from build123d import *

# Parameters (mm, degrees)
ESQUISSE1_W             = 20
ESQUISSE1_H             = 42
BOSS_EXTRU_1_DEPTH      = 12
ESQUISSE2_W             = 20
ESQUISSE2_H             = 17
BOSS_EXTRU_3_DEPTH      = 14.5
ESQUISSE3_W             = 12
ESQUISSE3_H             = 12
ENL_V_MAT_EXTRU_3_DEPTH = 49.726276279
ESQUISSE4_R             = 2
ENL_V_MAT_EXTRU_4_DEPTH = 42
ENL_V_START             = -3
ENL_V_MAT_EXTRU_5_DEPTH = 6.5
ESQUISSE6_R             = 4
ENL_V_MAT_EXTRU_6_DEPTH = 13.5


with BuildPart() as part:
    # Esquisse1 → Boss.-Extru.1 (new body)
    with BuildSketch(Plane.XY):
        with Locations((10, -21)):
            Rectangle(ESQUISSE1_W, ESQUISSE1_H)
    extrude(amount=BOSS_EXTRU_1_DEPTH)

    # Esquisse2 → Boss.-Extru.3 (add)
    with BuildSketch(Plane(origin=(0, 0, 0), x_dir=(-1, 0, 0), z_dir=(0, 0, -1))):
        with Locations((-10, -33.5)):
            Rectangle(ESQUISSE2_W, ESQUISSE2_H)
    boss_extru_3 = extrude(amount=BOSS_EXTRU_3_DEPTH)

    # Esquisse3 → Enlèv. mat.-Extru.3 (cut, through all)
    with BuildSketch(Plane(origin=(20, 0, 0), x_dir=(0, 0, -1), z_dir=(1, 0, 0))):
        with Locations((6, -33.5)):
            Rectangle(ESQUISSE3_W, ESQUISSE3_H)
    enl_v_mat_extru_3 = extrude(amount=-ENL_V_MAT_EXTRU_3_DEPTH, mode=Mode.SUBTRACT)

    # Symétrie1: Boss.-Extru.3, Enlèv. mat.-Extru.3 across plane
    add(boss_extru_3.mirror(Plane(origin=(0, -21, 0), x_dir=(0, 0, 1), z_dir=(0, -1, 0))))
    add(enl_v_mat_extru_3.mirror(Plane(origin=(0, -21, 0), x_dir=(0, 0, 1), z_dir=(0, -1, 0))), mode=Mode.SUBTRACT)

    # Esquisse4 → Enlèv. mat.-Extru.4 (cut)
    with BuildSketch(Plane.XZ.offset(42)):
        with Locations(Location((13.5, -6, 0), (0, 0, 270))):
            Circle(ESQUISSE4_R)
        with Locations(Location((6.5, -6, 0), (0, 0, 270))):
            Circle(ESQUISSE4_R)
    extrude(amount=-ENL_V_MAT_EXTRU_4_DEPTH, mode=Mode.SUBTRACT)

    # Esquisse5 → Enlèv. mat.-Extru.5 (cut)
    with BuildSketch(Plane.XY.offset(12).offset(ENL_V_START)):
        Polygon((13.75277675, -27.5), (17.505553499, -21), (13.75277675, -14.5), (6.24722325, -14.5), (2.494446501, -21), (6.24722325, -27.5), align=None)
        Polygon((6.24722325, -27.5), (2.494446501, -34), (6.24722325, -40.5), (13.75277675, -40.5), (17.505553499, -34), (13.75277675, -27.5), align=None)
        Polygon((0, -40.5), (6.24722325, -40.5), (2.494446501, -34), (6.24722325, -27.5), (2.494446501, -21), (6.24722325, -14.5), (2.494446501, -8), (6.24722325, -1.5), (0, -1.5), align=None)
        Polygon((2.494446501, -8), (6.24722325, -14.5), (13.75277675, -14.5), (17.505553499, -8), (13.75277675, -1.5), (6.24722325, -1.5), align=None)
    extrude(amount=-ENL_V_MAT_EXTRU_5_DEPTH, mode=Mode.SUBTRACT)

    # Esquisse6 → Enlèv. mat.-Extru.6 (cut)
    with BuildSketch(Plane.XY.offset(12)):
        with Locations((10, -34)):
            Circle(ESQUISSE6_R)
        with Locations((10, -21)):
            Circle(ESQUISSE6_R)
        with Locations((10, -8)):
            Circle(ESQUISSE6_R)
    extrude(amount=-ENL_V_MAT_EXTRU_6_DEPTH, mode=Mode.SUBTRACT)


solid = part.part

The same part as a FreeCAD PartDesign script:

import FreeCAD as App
import Part
import Sketcher
Q = App.Units.Quantity

doc = App.newDocument("Part")
body = doc.addObject("PartDesign::Body", "Body")

# Sketch on XY plane
sketch1 = doc.addObject("Sketcher::SketchObject", "Sketch")
body.addObject(sketch1)
sketch1.AttachmentSupport = (doc.XY_Plane, [""])
sketch1.MapMode = "FlatFace"
sketch1.addGeometry(Part.LineSegment(App.Vector(0, 0, 0), App.Vector(0, -42, 0)), False)
sketch1.addGeometry(Part.LineSegment(App.Vector(0, -42, 0), App.Vector(20, -42, 0)), False)
sketch1.addGeometry(Part.LineSegment(App.Vector(20, -42, 0), App.Vector(20, 0, 0)), False)
sketch1.addGeometry(Part.LineSegment(App.Vector(20, 0, 0), App.Vector(0, 0, 0)), False)
sketch1.addConstraint(Sketcher.Constraint("Coincident", 0, 2, 1, 1))
sketch1.addConstraint(Sketcher.Constraint("Coincident", 1, 2, 2, 1))
sketch1.addConstraint(Sketcher.Constraint("Coincident", 2, 2, 3, 1))
sketch1.addConstraint(Sketcher.Constraint("Coincident", 3, 2, 0, 1))
sketch1.addConstraint(Sketcher.Constraint("Vertical", 0))
sketch1.addConstraint(Sketcher.Constraint("Horizontal", 1))
sketch1.addConstraint(Sketcher.Constraint("Vertical", 2))
sketch1.addConstraint(Sketcher.Constraint("Horizontal", 3))
sketch1.addConstraint(Sketcher.Constraint("Coincident", 3, 2, -1, 1))
sketch1.addConstraint(Sketcher.Constraint("DistanceX", 1, 1, 1, 2, 20.0))
sketch1.addConstraint(Sketcher.Constraint("DistanceY", 0, 2, 0, 1, 42.0))
pad1 = doc.addObject("PartDesign::Pad", "Pad")
body.addObject(pad1)
pad1.Profile = sketch1
pad1.Length = 12

# Sketch on XY plane
sketch2 = doc.addObject("Sketcher::SketchObject", "Sketch001")
body.addObject(sketch2)
sketch2.AttachmentSupport = (doc.XY_Plane, [""])
sketch2.MapMode = "FlatFace"
sketch2.addGeometry(Part.LineSegment(App.Vector(20, -25, 0), App.Vector(20, -42, 0)), False)
sketch2.addGeometry(Part.LineSegment(App.Vector(20, -42, 0), App.Vector(0, -42, 0)), False)
sketch2.addGeometry(Part.LineSegment(App.Vector(0, -42, 0), App.Vector(0, -25, 0)), False)
sketch2.addGeometry(Part.LineSegment(App.Vector(0, -25, 0), App.Vector(20, -25, 0)), False)
sketch2.addConstraint(Sketcher.Constraint("Coincident", 0, 2, 1, 1))
sketch2.addConstraint(Sketcher.Constraint("Coincident", 1, 2, 2, 1))
sketch2.addConstraint(Sketcher.Constraint("Coincident", 2, 2, 3, 1))
sketch2.addConstraint(Sketcher.Constraint("Coincident", 3, 2, 0, 1))
sketch2.addConstraint(Sketcher.Constraint("Vertical", 0))
sketch2.addConstraint(Sketcher.Constraint("Horizontal", 1))
sketch2.addConstraint(Sketcher.Constraint("Vertical", 2))
sketch2.addConstraint(Sketcher.Constraint("Horizontal", 3))
sketch2.addConstraint(Sketcher.Constraint("PointOnObject", 1, 2, -2))
sketch2.addConstraint(Sketcher.Constraint("DistanceX", 1, 2, 1, 1, 20.0))
sketch2.addConstraint(Sketcher.Constraint("DistanceY", 0, 2, 0, 1, 17.0))
sketch2.addConstraint(Sketcher.Constraint("DistanceY", 0, 2, -1, 1, 42.0))
pad2 = doc.addObject("PartDesign::Pad", "Pad001")
body.addObject(pad2)
pad2.Profile = sketch2
pad2.Length = 14.5
pad2.Reversed = True

# Sketch on YZ plane
sketch3 = doc.addObject("Sketcher::SketchObject", "Sketch002")
body.addObject(sketch3)
sketch3.AttachmentSupport = (doc.YZ_Plane, [""])
sketch3.MapMode = "FlatFace"
sketch3.AttachmentOffset = App.Placement(App.Vector(0, 0, 20), App.Rotation())
sketch3.addGeometry(Part.LineSegment(App.Vector(-28, 0, 0), App.Vector(-40, 0, 0)), False)
sketch3.addGeometry(Part.LineSegment(App.Vector(-40, 0, 0), App.Vector(-40, -12, 0)), False)
sketch3.addGeometry(Part.LineSegment(App.Vector(-40, -12, 0), App.Vector(-28, -12, 0)), False)
sketch3.addGeometry(Part.LineSegment(App.Vector(-28, -12, 0), App.Vector(-28, 0, 0)), False)
sketch3.addConstraint(Sketcher.Constraint("Coincident", 0, 2, 1, 1))
sketch3.addConstraint(Sketcher.Constraint("Coincident", 1, 2, 2, 1))
sketch3.addConstraint(Sketcher.Constraint("Coincident", 2, 2, 3, 1))
sketch3.addConstraint(Sketcher.Constraint("Coincident", 3, 2, 0, 1))
sketch3.addConstraint(Sketcher.Constraint("Horizontal", 0))
sketch3.addConstraint(Sketcher.Constraint("Vertical", 1))
sketch3.addConstraint(Sketcher.Constraint("Horizontal", 2))
sketch3.addConstraint(Sketcher.Constraint("Vertical", 3))
sketch3.addConstraint(Sketcher.Constraint("PointOnObject", 0, 2, -1))
sketch3.addConstraint(Sketcher.Constraint("Equal", 2, 1))
sketch3.addConstraint(Sketcher.Constraint("DistanceX", 0, 2, 0, 1, 12.0))
sketch3.addConstraint(Sketcher.Constraint("DistanceX", 0, 2, -1, 1, 39.5))
pocket1 = doc.addObject("PartDesign::Pocket", "Pocket")
body.addObject(pocket1)
pocket1.Profile = sketch3
pocket1.Type = "ThroughAll"
doc.recompute()

datumplane = doc.addObject("PartDesign::Plane", "DatumPlane")
body.addObject(datumplane)
datumplane.AttachmentSupport = (doc.XZ_Plane, [""])
datumplane.MapMode = "FlatFace"
datumplane.AttachmentOffset = App.Placement(App.Vector(0, 0, 21), App.Rotation())
mirrored = doc.addObject("PartDesign::Mirrored", "Mirrored")
body.addObject(mirrored)
mirrored.Originals = [pad2, pocket1]
mirrored.MirrorPlane = (datumplane, [""])
body.Tip = mirrored

# Sketch on XZ plane
sketch4 = doc.addObject("Sketcher::SketchObject", "Sketch003")
body.addObject(sketch4)
sketch4.AttachmentSupport = (doc.XZ_Plane, [""])
sketch4.MapMode = "FlatFace"
sketch4.AttachmentOffset = App.Placement(App.Vector(0, 0, 42), App.Rotation())
sketch4.addGeometry(Part.Circle(App.Vector(13.5, -6, 0), App.Vector(0, 0, 1), 2), False)
sketch4.addGeometry(Part.Circle(App.Vector(6.5, -6, 0), App.Vector(0, 0, 1), 2), False)
sketch4.addConstraint(Sketcher.Constraint("Equal", 0, 1))
sketch4.addConstraint(Sketcher.Constraint("Horizontal", 0, 3, 1, 3))
sketch4.addConstraint(Sketcher.Constraint("Diameter", 0, 4.0))
sketch4.addConstraint(Sketcher.Constraint("DistanceY", 0, 3, -1, 1, 6.0))
sketch4.addConstraint(Sketcher.Constraint("DistanceX", 1, 3, 0, 3, 7.0))
sketch4.addConstraint(Sketcher.Constraint("DistanceX", -1, 1, 0, 3, 13.5))
pocket2 = doc.addObject("PartDesign::Pocket", "Pocket001")
body.addObject(pocket2)
pocket2.Profile = sketch4
pocket2.Length = 42

# Sketch on XY plane
sketch5 = doc.addObject("Sketcher::SketchObject", "Sketch004")
body.addObject(sketch5)
sketch5.AttachmentSupport = (doc.XY_Plane, [""])
sketch5.MapMode = "FlatFace"
sketch5.AttachmentOffset = App.Placement(App.Vector(0, 0, 9), App.Rotation())
sketch5.addGeometry(Part.LineSegment(App.Vector(14, -28, 0), App.Vector(18, -21, 0)), False)
sketch5.addGeometry(Part.LineSegment(App.Vector(18, -21, 0), App.Vector(14, -14, 0)), False)
sketch5.addGeometry(Part.LineSegment(App.Vector(14, -14, 0), App.Vector(18, -8, 0)), False)
sketch5.addGeometry(Part.LineSegment(App.Vector(18, -8, 0), App.Vector(14, -2, 0)), False)
sketch5.addGeometry(Part.LineSegment(App.Vector(14, -2, 0), App.Vector(0, -2, 0)), False)
sketch5.addGeometry(Part.LineSegment(App.Vector(0, -2, 0), App.Vector(0, -40, 0)), False)
sketch5.addGeometry(Part.LineSegment(App.Vector(0, -40, 0), App.Vector(14, -40, 0)), False)
sketch5.addGeometry(Part.LineSegment(App.Vector(14, -40, 0), App.Vector(18, -34, 0)), False)
sketch5.addGeometry(Part.LineSegment(App.Vector(18, -34, 0), App.Vector(14, -28, 0)), False)
sketch5.addConstraint(Sketcher.Constraint("Coincident", 0, 2, 1, 1))
sketch5.addConstraint(Sketcher.Constraint("Coincident", 1, 2, 2, 1))
sketch5.addConstraint(Sketcher.Constraint("Coincident", 2, 2, 3, 1))
sketch5.addConstraint(Sketcher.Constraint("Coincident", 3, 2, 4, 1))
sketch5.addConstraint(Sketcher.Constraint("Coincident", 4, 2, 5, 1))
sketch5.addConstraint(Sketcher.Constraint("Coincident", 5, 2, 6, 1))
sketch5.addConstraint(Sketcher.Constraint("Coincident", 6, 2, 7, 1))
sketch5.addConstraint(Sketcher.Constraint("Coincident", 7, 2, 8, 1))
sketch5.addConstraint(Sketcher.Constraint("Coincident", 8, 2, 0, 1))
sketch5.addConstraint(Sketcher.Constraint("Horizontal", 4))
sketch5.addConstraint(Sketcher.Constraint("Vertical", 5))
sketch5.addConstraint(Sketcher.Constraint("Horizontal", 6))
sketch5.addConstraint(Sketcher.Constraint("PointOnObject", 4, 2, -2))
sketch5.addConstraint(Sketcher.Constraint("Parallel", 0, 2))
sketch5.addConstraint(Sketcher.Constraint("Parallel", 1, 3))
sketch5.addConstraint(Sketcher.Constraint("Parallel", 2, 7))
sketch5.addConstraint(Sketcher.Constraint("Parallel", 3, 8))
sketch5.addConstraint(Sketcher.Constraint("Vertical", 0, 2, 2, 2))
sketch5.addConstraint(Sketcher.Constraint("Vertical", 1, 2, 3, 2))
sketch5.addConstraint(Sketcher.Constraint("Vertical", 3, 2, 6, 2))
sketch5.addConstraint(Sketcher.Constraint("Vertical", 2, 2, 7, 2))
sketch5.addConstraint(Sketcher.Constraint("Vertical", 6, 2, 8, 2))
sketch5.addConstraint(Sketcher.Constraint("Equal", 0, 1))
sketch5.addConstraint(Sketcher.Constraint("DistanceY", 5, 2, 5, 1, 39.0))
sketch5.addConstraint(Sketcher.Constraint("Angle", 0, Q("60 deg")))
sketch5.addConstraint(Sketcher.Constraint("DistanceY", 0, 2, -1, 1, 21.0))
sketch5.addConstraint(Sketcher.Constraint("DistanceX", 4, 2, 4, 1, 13.752777))
pocket3 = doc.addObject("PartDesign::Pocket", "Pocket002")
body.addObject(pocket3)
pocket3.Profile = sketch5
pocket3.Length = 6.5

# Sketch on XY plane
sketch6 = doc.addObject("Sketcher::SketchObject", "Sketch005")
body.addObject(sketch6)
sketch6.AttachmentSupport = (doc.XY_Plane, [""])
sketch6.MapMode = "FlatFace"
sketch6.AttachmentOffset = App.Placement(App.Vector(0, 0, 12), App.Rotation())
sketch6.addGeometry(Part.Circle(App.Vector(10, -34, 0), App.Vector(0, 0, 1), 4), False)
sketch6.addGeometry(Part.Circle(App.Vector(10, -21, 0), App.Vector(0, 0, 1), 4), False)
sketch6.addGeometry(Part.Circle(App.Vector(10, -8, 0), App.Vector(0, 0, 1), 4), False)
sketch6.addConstraint(Sketcher.Constraint("Equal", 0, 1))
sketch6.addConstraint(Sketcher.Constraint("Equal", 1, 2))
sketch6.addConstraint(Sketcher.Constraint("Vertical", 0, 3, 1, 3))
sketch6.addConstraint(Sketcher.Constraint("Vertical", 1, 3, 2, 3))
sketch6.addConstraint(Sketcher.Constraint("Diameter", 0, 8.0))
sketch6.addConstraint(Sketcher.Constraint("DistanceX", -1, 1, 0, 3, 10.0))
sketch6.addConstraint(Sketcher.Constraint("DistanceY", 0, 3, -1, 1, 34.0))
sketch6.addConstraint(Sketcher.Constraint("DistanceY", 1, 3, -1, 1, 21.0))
sketch6.addConstraint(Sketcher.Constraint("DistanceY", 2, 3, -1, 1, 8.0))
pocket4 = doc.addObject("PartDesign::Pocket", "Pocket003")
body.addObject(pocket4)
pocket4.Profile = sketch6
pocket4.Length = 13.5

doc.recompute()
